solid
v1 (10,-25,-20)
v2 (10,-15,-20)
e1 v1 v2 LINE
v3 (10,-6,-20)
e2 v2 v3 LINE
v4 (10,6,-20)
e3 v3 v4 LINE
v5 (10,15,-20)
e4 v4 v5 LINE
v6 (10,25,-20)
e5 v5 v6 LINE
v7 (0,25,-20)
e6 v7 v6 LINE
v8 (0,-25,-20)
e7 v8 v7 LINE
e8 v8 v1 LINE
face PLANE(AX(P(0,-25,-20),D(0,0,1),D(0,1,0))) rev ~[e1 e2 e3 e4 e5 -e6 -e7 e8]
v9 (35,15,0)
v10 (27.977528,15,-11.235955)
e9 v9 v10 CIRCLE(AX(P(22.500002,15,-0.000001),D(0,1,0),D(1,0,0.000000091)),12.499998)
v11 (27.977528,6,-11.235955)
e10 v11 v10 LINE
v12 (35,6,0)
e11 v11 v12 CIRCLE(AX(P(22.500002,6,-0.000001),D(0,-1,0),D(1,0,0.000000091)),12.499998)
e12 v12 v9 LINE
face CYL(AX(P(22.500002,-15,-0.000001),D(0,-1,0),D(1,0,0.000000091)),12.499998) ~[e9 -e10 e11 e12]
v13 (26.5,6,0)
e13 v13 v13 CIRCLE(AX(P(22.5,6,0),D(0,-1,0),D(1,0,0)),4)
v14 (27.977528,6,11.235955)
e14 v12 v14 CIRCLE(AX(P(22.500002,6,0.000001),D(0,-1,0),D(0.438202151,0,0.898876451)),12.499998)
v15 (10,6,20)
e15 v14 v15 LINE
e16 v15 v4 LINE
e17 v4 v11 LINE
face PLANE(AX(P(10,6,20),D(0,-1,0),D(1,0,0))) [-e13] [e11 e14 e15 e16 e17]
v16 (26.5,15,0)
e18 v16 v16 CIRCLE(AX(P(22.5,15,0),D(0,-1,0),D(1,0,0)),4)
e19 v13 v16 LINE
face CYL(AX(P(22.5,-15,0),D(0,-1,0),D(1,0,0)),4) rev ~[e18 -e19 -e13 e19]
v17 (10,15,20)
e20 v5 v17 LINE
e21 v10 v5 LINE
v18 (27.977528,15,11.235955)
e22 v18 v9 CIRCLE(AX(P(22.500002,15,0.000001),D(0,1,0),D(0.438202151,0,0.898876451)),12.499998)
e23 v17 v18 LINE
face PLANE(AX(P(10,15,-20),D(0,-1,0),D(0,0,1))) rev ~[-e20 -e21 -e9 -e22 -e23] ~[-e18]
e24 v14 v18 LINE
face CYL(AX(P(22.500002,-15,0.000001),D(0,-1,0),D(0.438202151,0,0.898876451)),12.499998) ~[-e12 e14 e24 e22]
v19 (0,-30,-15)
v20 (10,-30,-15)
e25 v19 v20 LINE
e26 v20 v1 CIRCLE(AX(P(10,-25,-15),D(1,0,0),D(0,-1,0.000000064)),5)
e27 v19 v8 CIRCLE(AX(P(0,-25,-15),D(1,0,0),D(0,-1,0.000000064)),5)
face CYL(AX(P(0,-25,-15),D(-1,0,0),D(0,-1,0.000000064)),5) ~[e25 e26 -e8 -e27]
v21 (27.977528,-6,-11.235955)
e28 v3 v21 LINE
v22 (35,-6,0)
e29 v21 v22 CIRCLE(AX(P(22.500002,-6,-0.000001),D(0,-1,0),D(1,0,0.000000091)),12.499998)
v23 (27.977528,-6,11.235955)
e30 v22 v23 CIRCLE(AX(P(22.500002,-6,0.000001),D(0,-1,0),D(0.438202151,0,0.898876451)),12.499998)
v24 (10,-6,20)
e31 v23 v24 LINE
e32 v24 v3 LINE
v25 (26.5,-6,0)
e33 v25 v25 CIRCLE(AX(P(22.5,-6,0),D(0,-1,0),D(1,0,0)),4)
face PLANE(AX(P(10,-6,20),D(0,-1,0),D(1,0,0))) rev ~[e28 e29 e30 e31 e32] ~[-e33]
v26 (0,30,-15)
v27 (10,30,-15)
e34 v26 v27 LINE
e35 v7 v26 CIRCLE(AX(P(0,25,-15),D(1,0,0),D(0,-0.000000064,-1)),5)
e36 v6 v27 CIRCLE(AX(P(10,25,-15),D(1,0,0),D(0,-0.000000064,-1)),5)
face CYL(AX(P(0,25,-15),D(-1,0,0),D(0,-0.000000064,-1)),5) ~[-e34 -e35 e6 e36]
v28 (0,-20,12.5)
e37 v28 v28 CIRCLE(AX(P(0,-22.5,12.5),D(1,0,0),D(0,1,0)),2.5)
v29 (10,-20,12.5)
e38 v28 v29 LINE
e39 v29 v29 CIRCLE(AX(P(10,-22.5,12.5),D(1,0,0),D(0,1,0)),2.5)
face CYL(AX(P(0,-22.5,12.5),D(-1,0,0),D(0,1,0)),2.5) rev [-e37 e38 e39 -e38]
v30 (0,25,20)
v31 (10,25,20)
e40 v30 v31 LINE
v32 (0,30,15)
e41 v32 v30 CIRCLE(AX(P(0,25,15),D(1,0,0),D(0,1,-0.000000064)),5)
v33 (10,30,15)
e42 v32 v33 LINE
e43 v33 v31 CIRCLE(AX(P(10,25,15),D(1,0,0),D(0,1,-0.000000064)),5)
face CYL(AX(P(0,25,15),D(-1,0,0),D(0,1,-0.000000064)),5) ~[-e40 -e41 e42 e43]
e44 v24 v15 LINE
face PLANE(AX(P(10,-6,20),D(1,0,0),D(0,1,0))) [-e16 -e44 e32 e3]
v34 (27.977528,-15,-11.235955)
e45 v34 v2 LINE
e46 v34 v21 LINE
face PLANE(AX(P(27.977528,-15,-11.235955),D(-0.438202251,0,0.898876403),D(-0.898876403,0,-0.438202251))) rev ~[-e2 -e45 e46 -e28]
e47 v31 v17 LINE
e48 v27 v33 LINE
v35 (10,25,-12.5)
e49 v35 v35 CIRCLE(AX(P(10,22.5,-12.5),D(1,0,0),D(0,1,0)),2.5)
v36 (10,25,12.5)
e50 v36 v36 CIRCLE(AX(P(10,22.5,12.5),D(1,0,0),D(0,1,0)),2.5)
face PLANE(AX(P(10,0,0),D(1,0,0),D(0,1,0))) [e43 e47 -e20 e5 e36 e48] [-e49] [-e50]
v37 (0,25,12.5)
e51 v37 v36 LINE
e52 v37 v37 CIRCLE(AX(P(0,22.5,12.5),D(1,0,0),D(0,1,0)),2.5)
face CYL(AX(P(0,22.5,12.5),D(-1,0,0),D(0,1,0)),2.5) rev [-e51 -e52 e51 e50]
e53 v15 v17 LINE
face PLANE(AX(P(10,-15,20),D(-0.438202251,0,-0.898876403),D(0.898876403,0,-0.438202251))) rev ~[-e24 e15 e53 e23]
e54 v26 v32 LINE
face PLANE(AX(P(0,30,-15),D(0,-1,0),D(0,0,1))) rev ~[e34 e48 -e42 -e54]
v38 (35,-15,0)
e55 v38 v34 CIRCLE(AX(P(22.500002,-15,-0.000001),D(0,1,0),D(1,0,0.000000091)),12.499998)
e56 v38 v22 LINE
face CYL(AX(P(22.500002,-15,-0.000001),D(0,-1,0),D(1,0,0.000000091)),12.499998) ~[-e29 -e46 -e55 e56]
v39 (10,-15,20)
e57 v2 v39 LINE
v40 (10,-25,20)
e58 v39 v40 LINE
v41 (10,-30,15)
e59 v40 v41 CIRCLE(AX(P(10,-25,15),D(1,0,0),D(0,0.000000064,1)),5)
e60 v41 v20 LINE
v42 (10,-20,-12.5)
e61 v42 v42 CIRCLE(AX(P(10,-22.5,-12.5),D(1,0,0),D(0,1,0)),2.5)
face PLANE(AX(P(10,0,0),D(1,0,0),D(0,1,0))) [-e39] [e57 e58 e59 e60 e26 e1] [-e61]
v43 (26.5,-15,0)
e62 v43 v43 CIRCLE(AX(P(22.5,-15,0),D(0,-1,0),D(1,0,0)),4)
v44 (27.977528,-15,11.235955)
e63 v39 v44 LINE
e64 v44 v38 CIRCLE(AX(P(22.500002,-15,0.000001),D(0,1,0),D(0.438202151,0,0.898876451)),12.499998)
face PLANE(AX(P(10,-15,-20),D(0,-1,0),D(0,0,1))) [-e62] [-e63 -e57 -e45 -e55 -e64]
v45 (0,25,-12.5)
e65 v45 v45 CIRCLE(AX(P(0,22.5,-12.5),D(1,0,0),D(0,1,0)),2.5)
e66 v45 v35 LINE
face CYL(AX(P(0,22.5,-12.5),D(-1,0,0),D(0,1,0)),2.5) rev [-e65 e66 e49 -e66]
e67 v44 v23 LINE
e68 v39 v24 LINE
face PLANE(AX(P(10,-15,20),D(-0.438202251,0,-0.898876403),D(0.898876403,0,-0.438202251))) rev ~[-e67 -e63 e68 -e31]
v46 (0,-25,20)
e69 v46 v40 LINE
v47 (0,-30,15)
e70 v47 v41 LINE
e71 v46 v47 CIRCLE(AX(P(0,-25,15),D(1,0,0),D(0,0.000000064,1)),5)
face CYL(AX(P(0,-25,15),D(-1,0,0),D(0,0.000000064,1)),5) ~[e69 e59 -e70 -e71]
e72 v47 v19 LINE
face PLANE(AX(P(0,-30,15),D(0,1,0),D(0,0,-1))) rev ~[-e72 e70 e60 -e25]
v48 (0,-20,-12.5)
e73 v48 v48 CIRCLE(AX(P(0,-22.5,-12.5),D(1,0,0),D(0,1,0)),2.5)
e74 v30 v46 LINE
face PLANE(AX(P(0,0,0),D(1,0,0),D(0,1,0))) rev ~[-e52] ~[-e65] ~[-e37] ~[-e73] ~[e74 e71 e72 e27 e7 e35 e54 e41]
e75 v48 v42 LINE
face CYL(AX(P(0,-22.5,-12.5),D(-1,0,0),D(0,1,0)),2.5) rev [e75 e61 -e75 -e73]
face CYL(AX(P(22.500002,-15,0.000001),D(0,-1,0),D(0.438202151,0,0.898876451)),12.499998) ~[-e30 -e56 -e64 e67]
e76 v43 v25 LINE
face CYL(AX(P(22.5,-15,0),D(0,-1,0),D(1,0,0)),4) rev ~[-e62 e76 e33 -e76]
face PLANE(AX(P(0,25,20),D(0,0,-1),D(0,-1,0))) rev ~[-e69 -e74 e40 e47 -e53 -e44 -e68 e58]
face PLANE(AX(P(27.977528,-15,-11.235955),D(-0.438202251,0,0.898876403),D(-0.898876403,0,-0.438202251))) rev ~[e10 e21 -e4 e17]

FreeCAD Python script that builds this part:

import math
import FreeCAD as App
import Part
import Sketcher

V = App.Vector
Q = App.Units.Quantity

doc = App.newDocument("Part")
body = doc.addObject("PartDesign::Body", "Body")

# Sketch on YZ plane
sketch1 = body.newObject("Sketcher::SketchObject", "Sketch")
sketch1.AttachmentSupport = (doc.getObject("YZ_Plane"), [""])
sketch1.MapMode = "FlatFace"
sketch1.addGeometry(Part.LineSegment(V(25, 20, 0), V(-25, 20, 0)), False)
sketch1.addGeometry(Part.ArcOfCircle(Part.Circle(V(-25, 15, 0), V(0, 0, 1), 5), math.radians(89.999996), math.radians(180.000004)), False)
sketch1.addGeometry(Part.LineSegment(V(-30, 15, 0), V(-30, -15, 0)), False)
sketch1.addGeometry(Part.ArcOfCircle(Part.Circle(V(-25, -15, 0), V(0, 0, 1), 5), math.radians(179.999996), math.radians(270.000004)), False)
sketch1.addGeometry(Part.LineSegment(V(-25, -20, 0), V(25, -20, 0)), False)
sketch1.addGeometry(Part.ArcOfCircle(Part.Circle(V(25, -15, 0), V(0, 0, 1), 5), math.radians(-90.000004), math.radians(0.000004)), False)
sketch1.addGeometry(Part.LineSegment(V(30, -15, 0), V(30, 15, 0)), False)
sketch1.addGeometry(Part.ArcOfCircle(Part.Circle(V(25, 15, 0), V(0, 0, 1), 5), math.radians(-0.000004), math.radians(90.000004)), False)
sketch1.addGeometry(Part.Circle(V(-22.5, -12.5, 0), V(0, 0, 1), 2.5), False)
sketch1.addGeometry(Part.Circle(V(22.5, -12.5, 0), V(0, 0, 1), 2.5), False)
sketch1.addGeometry(Part.Circle(V(-22.5, 12.5, 0), V(0, 0, 1), 2.5), False)
sketch1.addGeometry(Part.Circle(V(22.5, 12.5, 0), V(0, 0, 1), 2.5), False)
sketch1.addConstraint(Sketcher.Constraint("Tangent", 0, 2, 1, 1))
sketch1.addConstraint(Sketcher.Constraint("Tangent", 1, 2, 2, 1))
sketch1.addConstraint(Sketcher.Constraint("Tangent", 2, 2, 3, 1))
sketch1.addConstraint(Sketcher.Constraint("Tangent", 3, 2, 4, 1))
sketch1.addConstraint(Sketcher.Constraint("Tangent", 4, 2, 5, 1))
sketch1.addConstraint(Sketcher.Constraint("Tangent", 5, 2, 6, 1))
sketch1.addConstraint(Sketcher.Constraint("Tangent", 6, 2, 7, 1))
sketch1.addConstraint(Sketcher.Constraint("Tangent", 7, 2, 0, 1))
sketch1.addConstraint(Sketcher.Constraint("Horizontal", 0))
sketch1.addConstraint(Sketcher.Constraint("Vertical", 2))
sketch1.addConstraint(Sketcher.Constraint("Horizontal", 4))
sketch1.addConstraint(Sketcher.Constraint("Vertical", 6))
sketch1.addConstraint(Sketcher.Constraint("Equal", 1, 3))
sketch1.addConstraint(Sketcher.Constraint("Equal", 3, 5))
sketch1.addConstraint(Sketcher.Constraint("Equal", 5, 7))
sketch1.addConstraint(Sketcher.Constraint("Equal", 8, 9))
sketch1.addConstraint(Sketcher.Constraint("Equal", 9, 10))
sketch1.addConstraint(Sketcher.Constraint("Equal", 10, 11))
sketch1.addConstraint(Sketcher.Constraint("Symmetric", 1, 3, 5, 3, -1, 1))
sketch1.addConstraint(Sketcher.Constraint("Symmetric", 9, 3, 10, 3, -1, 1))
sketch1.addConstraint(Sketcher.Constraint("Symmetric", 8, 3, 11, 3, -1, 1))
sketch1.addConstraint(Sketcher.Constraint("Symmetric", 8, 3, 9, 3, -2))
sketch1.addConstraint(Sketcher.Constraint("Diameter", 8, Q("5 mm")))
sketch1.addConstraint(Sketcher.Constraint("Radius", 1, Q("5 mm")))
sketch1.addConstraint(Sketcher.Constraint("DistanceX", 0, 2, 0, 1, Q("50 mm")))
sketch1.addConstraint(Sketcher.Constraint("DistanceY", 2, 2, 2, 1, Q("30 mm")))
sketch1.addConstraint(Sketcher.Constraint("DistanceX", 8, 3, 9, 3, Q("45 mm")))
sketch1.addConstraint(Sketcher.Constraint("DistanceY", 8, 3, 10, 3, Q("25 mm")))
pad1 = body.newObject("PartDesign::Pad", "Pad")
pad1.Profile = sketch1
pad1.Length = 10

# Sketch on YZ plane
sketch2 = body.newObject("Sketcher::SketchObject", "Sketch001")
sketch2.AttachmentSupport = (doc.getObject("YZ_Plane"), [""])
sketch2.MapMode = "FlatFace"
sketch2.AttachmentOffset = App.Placement(V(0, 0, 10), App.Rotation())
sketch2.addGeometry(Part.LineSegment(V(-15, 20, 0), V(-15, -20, 0)), False)
sketch2.addGeometry(Part.LineSegment(V(-15, -20, 0), V(15, -20, 0)), False)
sketch2.addGeometry(Part.LineSegment(V(15, -20, 0), V(15, 20, 0)), False)
sketch2.addGeometry(Part.LineSegment(V(15, 20, 0), V(-15, 20, 0)), False)
sketch2.addConstraint(Sketcher.Constraint("Coincident", 0, 2, 1, 1))
sketch2.addConstraint(Sketcher.Constraint("Coincident", 1, 2, 2, 1))
sketch2.addConstraint(Sketcher.Constraint("Coincident", 2, 2, 3, 1))
sketch2.addConstraint(Sketcher.Constraint("Coincident", 3, 2, 0, 1))
sketch2.addConstraint(Sketcher.Constraint("Vertical", 0))
sketch2.addConstraint(Sketcher.Constraint("Horizontal", 1))
sketch2.addConstraint(Sketcher.Constraint("Vertical", 2))
sketch2.addConstraint(Sketcher.Constraint("Horizontal", 3))
sketch2.addConstraint(Sketcher.Constraint("Symmetric", 0, 2, 2, 2, -1, 1))
sketch2.addConstraint(Sketcher.Constraint("DistanceX", 1, 1, 1, 2, Q("30 mm")))
sketch2.addConstraint(Sketcher.Constraint("DistanceY", 0, 2, 0, 1, Q("40 mm")))
pad2 = body.newObject("PartDesign::Pad", "Pad001")
pad2.Profile = sketch2
pad2.Length = 25

# Sketch on XZ plane
sketch3 = body.newObject("Sketcher::SketchObject", "Sketch002")
sketch3.AttachmentSupport = (doc.getObject("XZ_Plane"), [""])
sketch3.MapMode = "FlatFace"
sketch3.AttachmentOffset = App.Placement(V(0, 0, 15), App.Rotation())
sketch3.addGeometry(Part.ArcOfCircle(Part.Circle(V(22.500002, 0.000001, 0), V(0, 0, 1), 12.499998), math.radians(-0.000005), math.radians(64.010773)), False)
sketch3.addGeometry(Part.LineSegment(V(35, 0, 0), V(35, 20, 0)), False)
sketch3.addGeometry(Part.LineSegment(V(35, 20, 0), V(10, 20, 0)), False)
sketch3.addGeometry(Part.LineSegment(V(10, 20, 0), V(27.977528, 11.235955, 0)), False)
sketch3.addGeometry(Part.ArcOfCircle(Part.Circle(V(22.500002, -0.000001, 0), V(0, 0, 1), 12.499998), math.radians(-64.010773), math.radians(0.000005)), False)
sketch3.addGeometry(Part.LineSegment(V(27.977528, -11.235955, 0), V(10, -20, 0)), False)
sketch3.addGeometry(Part.LineSegment(V(10, -20, 0), V(35, -20, 0)), False)
sketch3.addGeometry(Part.LineSegment(V(35, -20, 0), V(35, 0, 0)), False)
sketch3.addGeometry(Part.Circle(V(22.5, 0, 0), V(0, 0, 1), 4), False)
sketch3.addConstraint(Sketcher.Constraint("Tangent", 0, 1, 1, 1))
sketch3.addConstraint(Sketcher.Constraint("Coincident", 1, 2, 2, 1))
sketch3.addConstraint(Sketcher.Constraint("Coincident", 2, 2, 3, 1))
sketch3.addConstraint(Sketcher.Constraint("Tangent", 3, 2, 0, 2))
sketch3.addConstraint(Sketcher.Constraint("Tangent", 4, 1, 5, 1))
sketch3.addConstraint(Sketcher.Constraint("Coincident", 5, 2, 6, 1))
sketch3.addConstraint(Sketcher.Constraint("Coincident", 6, 2, 7, 1))
sketch3.addConstraint(Sketcher.Constraint("Tangent", 7, 2, 4, 2))
sketch3.addConstraint(Sketcher.Constraint("Vertical", 1))
sketch3.addConstraint(Sketcher.Constraint("Horizontal", 2))
sketch3.addConstraint(Sketcher.Constraint("Horizontal", 6))
sketch3.addConstraint(Sketcher.Constraint("Vertical", 7))
sketch3.addConstraint(Sketcher.Constraint("Coincident", 4, 3, 0, 3))
sketch3.addConstraint(Sketcher.Constraint("Coincident", 8, 3, 0, 3))
sketch3.addConstraint(Sketcher.Constraint("Equal", 0, 4))
sketch3.addConstraint(Sketcher.Constraint("Symmetric", 3, 2, 4, 1, -1))
sketch3.addConstraint(Sketcher.Constraint("Vertical", 2, 2, 5, 2))
sketch3.addConstraint(Sketcher.Constraint("Diameter", 8, Q("8 mm")))
sketch3.addConstraint(Sketcher.Constraint("Radius", 0, Q("12.499998 mm")))
sketch3.addConstraint(Sketcher.Constraint("DistanceX", 2, 2, 2, 1, Q("25 mm")))
sketch3.addConstraint(Sketcher.Constraint("DistanceY", 1, 1, 1, 2, Q("20 mm")))
sketch3.addConstraint(Sketcher.Constraint("DistanceX", -1, 1, 0, 1, Q("35 mm")))
pocket1 = body.newObject("PartDesign::Pocket", "Pocket")
pocket1.Profile = sketch3
pocket1.Length = 30

# Sketch on XY plane
sketch4 = body.newObject("Sketcher::SketchObject", "Sketch003")
sketch4.AttachmentSupport = (doc.getObject("XY_Plane"), [""])
sketch4.MapMode = "FlatFace"
sketch4.AttachmentOffset = App.Placement(V(0, 0, 20), App.Rotation())
sketch4.addGeometry(Part.LineSegment(V(10, 6, 0), V(10, -6, 0)), False)
sketch4.addGeometry(Part.LineSegment(V(10, -6, 0), V(40, -6, 0)), False)
sketch4.addGeometry(Part.LineSegment(V(40, -6, 0), V(40, 6, 0)), False)
sketch4.addGeometry(Part.LineSegment(V(40, 6, 0), V(10, 6, 0)), False)
sketch4.addConstraint(Sketcher.Constraint("Coincident", 0, 2, 1, 1))
sketch4.addConstraint(Sketcher.Constraint("Coincident", 1, 2, 2, 1))
sketch4.addConstraint(Sketcher.Constraint("Coincident", 2, 2, 3, 1))
sketch4.addConstraint(Sketcher.Constraint("Coincident", 3, 2, 0, 1))
sketch4.addConstraint(Sketcher.Constraint("Vertical", 0))
sketch4.addConstraint(Sketcher.Constraint("Horizontal", 1))
sketch4.addConstraint(Sketcher.Constraint("Vertical", 2))
sketch4.addConstraint(Sketcher.Constraint("Horizontal", 3))
sketch4.addConstraint(Sketcher.Constraint("DistanceX", 1, 1, 1, 2, Q("30 mm")))
sketch4.addConstraint(Sketcher.Constraint("DistanceY", 0, 2, 0, 1, Q("12 mm")))
sketch4.addConstraint(Sketcher.Constraint("DistanceX", -1, 1, 0, 2, Q("10 mm")))
sketch4.addConstraint(Sketcher.Constraint("DistanceY", 0, 2, -1, 1, Q("6 mm")))
pocket2 = body.newObject("PartDesign::Pocket", "Pocket001")
pocket2.Profile = sketch4
pocket2.Type = "ThroughAll"

doc.recompute()
